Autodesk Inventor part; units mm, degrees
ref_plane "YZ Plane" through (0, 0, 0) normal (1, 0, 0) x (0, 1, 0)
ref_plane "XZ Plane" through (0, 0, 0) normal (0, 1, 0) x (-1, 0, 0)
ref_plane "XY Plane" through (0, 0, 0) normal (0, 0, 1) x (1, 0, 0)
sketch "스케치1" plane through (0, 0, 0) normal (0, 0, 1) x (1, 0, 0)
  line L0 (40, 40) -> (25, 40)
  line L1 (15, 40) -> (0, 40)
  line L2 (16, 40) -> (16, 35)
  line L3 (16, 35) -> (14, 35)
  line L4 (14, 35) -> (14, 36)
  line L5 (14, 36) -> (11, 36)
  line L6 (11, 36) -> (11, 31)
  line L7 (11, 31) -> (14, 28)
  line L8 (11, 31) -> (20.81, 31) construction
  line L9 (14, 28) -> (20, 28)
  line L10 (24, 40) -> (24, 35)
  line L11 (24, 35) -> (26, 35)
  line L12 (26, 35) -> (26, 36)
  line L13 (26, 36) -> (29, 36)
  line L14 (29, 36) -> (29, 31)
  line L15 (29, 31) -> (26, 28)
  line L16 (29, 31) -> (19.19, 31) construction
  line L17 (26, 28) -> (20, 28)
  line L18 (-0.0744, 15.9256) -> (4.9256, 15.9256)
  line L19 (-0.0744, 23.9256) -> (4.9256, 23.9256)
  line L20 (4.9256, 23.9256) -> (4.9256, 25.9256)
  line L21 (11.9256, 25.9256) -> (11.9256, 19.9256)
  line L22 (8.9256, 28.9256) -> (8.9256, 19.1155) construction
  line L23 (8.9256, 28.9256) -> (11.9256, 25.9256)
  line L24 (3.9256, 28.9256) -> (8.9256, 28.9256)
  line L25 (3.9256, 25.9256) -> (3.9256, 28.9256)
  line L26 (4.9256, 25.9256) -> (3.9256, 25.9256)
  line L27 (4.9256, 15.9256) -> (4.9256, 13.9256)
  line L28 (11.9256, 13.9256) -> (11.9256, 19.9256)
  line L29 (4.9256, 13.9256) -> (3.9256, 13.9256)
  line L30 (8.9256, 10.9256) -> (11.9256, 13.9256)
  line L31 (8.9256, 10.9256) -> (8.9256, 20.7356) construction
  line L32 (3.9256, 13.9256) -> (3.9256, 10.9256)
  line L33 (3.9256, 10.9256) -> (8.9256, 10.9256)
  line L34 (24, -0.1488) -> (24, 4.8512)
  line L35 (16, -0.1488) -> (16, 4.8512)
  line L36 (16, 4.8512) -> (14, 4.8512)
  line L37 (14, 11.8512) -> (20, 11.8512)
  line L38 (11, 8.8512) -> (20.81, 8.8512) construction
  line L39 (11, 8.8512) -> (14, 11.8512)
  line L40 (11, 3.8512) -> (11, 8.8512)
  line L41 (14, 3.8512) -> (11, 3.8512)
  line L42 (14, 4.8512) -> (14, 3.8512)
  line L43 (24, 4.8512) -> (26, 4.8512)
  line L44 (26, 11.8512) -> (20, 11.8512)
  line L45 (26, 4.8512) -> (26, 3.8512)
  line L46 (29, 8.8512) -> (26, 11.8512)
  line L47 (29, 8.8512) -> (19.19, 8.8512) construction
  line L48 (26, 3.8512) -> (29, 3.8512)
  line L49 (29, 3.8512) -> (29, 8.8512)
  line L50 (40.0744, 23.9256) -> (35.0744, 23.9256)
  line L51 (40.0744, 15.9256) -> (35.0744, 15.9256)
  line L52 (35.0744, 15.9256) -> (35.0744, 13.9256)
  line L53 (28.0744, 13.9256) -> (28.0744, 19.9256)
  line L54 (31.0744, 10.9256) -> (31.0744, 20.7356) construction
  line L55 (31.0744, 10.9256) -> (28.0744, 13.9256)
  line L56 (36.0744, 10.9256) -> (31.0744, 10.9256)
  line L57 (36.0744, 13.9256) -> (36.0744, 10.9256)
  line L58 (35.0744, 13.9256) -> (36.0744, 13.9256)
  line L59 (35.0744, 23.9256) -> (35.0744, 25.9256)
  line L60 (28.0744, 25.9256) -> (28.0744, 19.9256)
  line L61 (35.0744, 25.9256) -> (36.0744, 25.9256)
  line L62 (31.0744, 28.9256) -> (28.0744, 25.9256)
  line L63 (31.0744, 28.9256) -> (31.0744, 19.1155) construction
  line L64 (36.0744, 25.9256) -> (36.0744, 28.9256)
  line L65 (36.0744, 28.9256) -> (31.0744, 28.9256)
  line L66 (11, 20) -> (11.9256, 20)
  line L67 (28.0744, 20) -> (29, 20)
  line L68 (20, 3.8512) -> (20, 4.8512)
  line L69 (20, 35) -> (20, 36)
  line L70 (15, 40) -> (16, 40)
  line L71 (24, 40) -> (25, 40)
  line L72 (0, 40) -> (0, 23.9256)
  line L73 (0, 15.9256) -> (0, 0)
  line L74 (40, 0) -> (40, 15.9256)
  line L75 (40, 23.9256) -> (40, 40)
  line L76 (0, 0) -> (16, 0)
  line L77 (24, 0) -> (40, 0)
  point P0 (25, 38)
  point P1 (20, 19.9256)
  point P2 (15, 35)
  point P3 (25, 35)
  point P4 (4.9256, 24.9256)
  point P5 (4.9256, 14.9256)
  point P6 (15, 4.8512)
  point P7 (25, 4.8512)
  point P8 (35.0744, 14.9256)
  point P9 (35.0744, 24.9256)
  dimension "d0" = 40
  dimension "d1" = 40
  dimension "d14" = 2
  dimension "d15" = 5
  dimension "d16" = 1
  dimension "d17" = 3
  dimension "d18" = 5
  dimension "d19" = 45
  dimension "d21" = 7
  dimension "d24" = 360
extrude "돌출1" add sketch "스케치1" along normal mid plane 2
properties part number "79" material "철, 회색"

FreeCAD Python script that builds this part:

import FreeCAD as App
import Part
import Sketcher

doc = App.newDocument("Part")
params = doc.addObject("Spreadsheet::Sheet", "Params")
for row, (alias, value) in enumerate([
    ("sketch1_width", "2 mm"),
    ("sketch1_width2", "3 mm"),
    ("sketch1_width3", "1 mm"),
    ("sketch1_width4", "5 mm"),
    ("sketch1_width5", "16 mm"),
    ("pad1_length", "2 mm"),
], start=1):
    params.set(f"A{row}", alias)
    params.set(f"B{row}", "=" + value)
    params.setAlias(f"B{row}", alias)

body = doc.addObject("PartDesign::Body", "Body")

sketch1 = doc.addObject("Sketcher::SketchObject", "Sketch")
body.addObject(sketch1)
sketch1.AttachmentSupport = (doc.XY_Plane, [""])
sketch1.MapMode = "FlatFace"
sketch1.addGeometry([
    Part.LineSegment(App.Vector(40, 23.9, 0), App.Vector(40, 40, 0)),
    Part.LineSegment(App.Vector(40, 40, 0), App.Vector(24, 40, 0)),
    Part.LineSegment(App.Vector(24, 40, 0), App.Vector(24, 35, 0)),
    Part.LineSegment(App.Vector(24, 35, 0), App.Vector(26, 35, 0)),
    Part.LineSegment(App.Vector(26, 35, 0), App.Vector(26, 36, 0)),
    Part.LineSegment(App.Vector(26, 36, 0), App.Vector(29, 36, 0)),
    Part.LineSegment(App.Vector(29, 36, 0), App.Vector(29, 31, 0)),
    Part.LineSegment(App.Vector(29, 31, 0), App.Vector(26, 28, 0)),
    Part.LineSegment(App.Vector(26, 28, 0), App.Vector(14, 28, 0)),
    Part.LineSegment(App.Vector(14, 28, 0), App.Vector(11, 31, 0)),
    Part.LineSegment(App.Vector(11, 31, 0), App.Vector(11, 36, 0)),
    Part.LineSegment(App.Vector(11, 36, 0), App.Vector(14, 36, 0)),
    Part.LineSegment(App.Vector(14, 36, 0), App.Vector(14, 35, 0)),
    Part.LineSegment(App.Vector(14, 35, 0), App.Vector(16, 35, 0)),
    Part.LineSegment(App.Vector(16, 35, 0), App.Vector(16, 40, 0)),
    Part.LineSegment(App.Vector(16, 40, 0), App.Vector(0, 40, 0)),
    Part.LineSegment(App.Vector(0, 40, 0), App.Vector(0, 23.9, 0)),
    Part.LineSegment(App.Vector(0, 23.9, 0), App.Vector(4.9, 23.9, 0)),
    Part.LineSegment(App.Vector(4.9, 23.9, 0), App.Vector(4.9, 25.9, 0)),
    Part.LineSegment(App.Vector(4.9, 25.9, 0), App.Vector(3.9, 25.9, 0)),
    Part.LineSegment(App.Vector(3.9, 25.9, 0), App.Vector(3.9, 28.9, 0)),
    Part.LineSegment(App.Vector(3.9, 28.9, 0), App.Vector(8.9, 28.9, 0)),
    Part.LineSegment(App.Vector(8.9, 28.9, 0), App.Vector(11.9, 25.9, 0)),
    Part.LineSegment(App.Vector(11.9, 25.9, 0), App.Vector(11.9, 13.9, 0)),
    Part.LineSegment(App.Vector(11.9, 13.9, 0), App.Vector(8.9, 10.9, 0)),
    Part.LineSegment(App.Vector(8.9, 10.9, 0), App.Vector(3.9, 10.9, 0)),
    Part.LineSegment(App.Vector(3.9, 10.9, 0), App.Vector(3.9, 13.9, 0)),
    Part.LineSegment(App.Vector(3.9, 13.9, 0), App.Vector(4.9, 13.9, 0)),
    Part.LineSegment(App.Vector(4.9, 13.9, 0), App.Vector(4.9, 15.9, 0)),
    Part.LineSegment(App.Vector(4.9, 15.9, 0), App.Vector(0, 15.9, 0)),
    Part.LineSegment(App.Vector(0, 15.9, 0), App.Vector(0, 0, 0)),
    Part.LineSegment(App.Vector(0, 0, 0), App.Vector(16, 0, 0)),
    Part.LineSegment(App.Vector(16, 0, 0), App.Vector(16, 4.9, 0)),
    Part.LineSegment(App.Vector(16, 4.9, 0), App.Vector(14, 4.9, 0)),
    Part.LineSegment(App.Vector(14, 4.9, 0), App.Vector(14, 3.9, 0)),
    Part.LineSegment(App.Vector(14, 3.9, 0), App.Vector(11, 3.9, 0)),
    Part.LineSegment(App.Vector(11, 3.9, 0), App.Vector(11, 8.9, 0)),
    Part.LineSegment(App.Vector(11, 8.9, 0), App.Vector(14, 11.9, 0)),
    Part.LineSegment(App.Vector(14, 11.9, 0), App.Vector(26, 11.9, 0)),
    Part.LineSegment(App.Vector(26, 11.9, 0), App.Vector(29, 8.9, 0)),
    Part.LineSegment(App.Vector(29, 8.9, 0), App.Vector(29, 3.9, 0)),
    Part.LineSegment(App.Vector(29, 3.9, 0), App.Vector(26, 3.9, 0)),
    Part.LineSegment(App.Vector(26, 3.9, 0), App.Vector(26, 4.9, 0)),
    Part.LineSegment(App.Vector(26, 4.9, 0), App.Vector(24, 4.9, 0)),
    Part.LineSegment(App.Vector(24, 4.9, 0), App.Vector(24, 0, 0)),
    Part.LineSegment(App.Vector(24, 0, 0), App.Vector(40, 0, 0)),
    Part.LineSegment(App.Vector(40, 0, 0), App.Vector(40, 15.9, 0)),
    Part.LineSegment(App.Vector(40, 15.9, 0), App.Vector(35.1, 15.9, 0)),
    Part.LineSegment(App.Vector(35.1, 15.9, 0), App.Vector(35.1, 13.9, 0)),
    Part.LineSegment(App.Vector(35.1, 13.9, 0), App.Vector(36.1, 13.9, 0)),
    Part.LineSegment(App.Vector(36.1, 13.9, 0), App.Vector(36.1, 10.9, 0)),
    Part.LineSegment(App.Vector(36.1, 10.9, 0), App.Vector(31.1, 10.9, 0)),
    Part.LineSegment(App.Vector(31.1, 10.9, 0), App.Vector(28.1, 13.9, 0)),
    Part.LineSegment(App.Vector(28.1, 13.9, 0), App.Vector(28.1, 25.9, 0)),
    Part.LineSegment(App.Vector(28.1, 25.9, 0), App.Vector(31.1, 28.9, 0)),
    Part.LineSegment(App.Vector(31.1, 28.9, 0), App.Vector(36.1, 28.9, 0)),
    Part.LineSegment(App.Vector(36.1, 28.9, 0), App.Vector(36.1, 25.9, 0)),
    Part.LineSegment(App.Vector(36.1, 25.9, 0), App.Vector(35.1, 25.9, 0)),
    Part.LineSegment(App.Vector(35.1, 25.9, 0), App.Vector(35.1, 23.9, 0)),
    Part.LineSegment(App.Vector(35.1, 23.9, 0), App.Vector(40, 23.9, 0)),
], False)
sketch1.addConstraint([
    Sketcher.Constraint("Coincident", 0, 2, 1, 1),
    Sketcher.Constraint("Coincident", 1, 2, 2, 1),
    Sketcher.Constraint("Coincident", 2, 2, 3, 1),
    Sketcher.Constraint("Coincident", 3, 2, 4, 1),
    Sketcher.Constraint("Coincident", 4, 2, 5, 1),
    Sketcher.Constraint("Coincident", 5, 2, 6, 1),
    Sketcher.Constraint("Coincident", 6, 2, 7, 1),
    Sketcher.Constraint("Coincident", 7, 2, 8, 1),
    Sketcher.Constraint("Coincident", 8, 2, 9, 1),
    Sketcher.Constraint("Coincident", 9, 2, 10, 1),
    Sketcher.Constraint("Coincident", 10, 2, 11, 1),
    Sketcher.Constraint("Coincident", 11, 2, 12, 1),
    Sketcher.Constraint("Coincident", 12, 2, 13, 1),
    Sketcher.Constraint("Coincident", 13, 2, 14, 1),
    Sketcher.Constraint("Coincident", 14, 2, 15, 1),
    Sketcher.Constraint("Coincident", 15, 2, 16, 1),
    Sketcher.Constraint("Coincident", 16, 2, 17, 1),
    Sketcher.Constraint("Coincident", 17, 2, 18, 1),
    Sketcher.Constraint("Coincident", 18, 2, 19, 1),
    Sketcher.Constraint("Coincident", 19, 2, 20, 1),
    Sketcher.Constraint("Coincident", 20, 2, 21, 1),
    Sketcher.Constraint("Coincident", 21, 2, 22, 1),
    Sketcher.Constraint("Coincident", 22, 2, 23, 1),
    Sketcher.Constraint("Coincident", 23, 2, 24, 1),
    Sketcher.Constraint("Coincident", 24, 2, 25, 1),
    Sketcher.Constraint("Coincident", 25, 2, 26, 1),
    Sketcher.Constraint("Coincident", 26, 2, 27, 1),
    Sketcher.Constraint("Coincident", 27, 2, 28, 1),
    Sketcher.Constraint("Coincident", 28, 2, 29, 1),
    Sketcher.Constraint("Coincident", 29, 2, 30, 1),
    Sketcher.Constraint("Coincident", 30, 2, 31, 1),
    Sketcher.Constraint("Coincident", 31, 2, 32, 1),
    Sketcher.Constraint("Coincident", 32, 2, 33, 1),
    Sketcher.Constraint("Coincident", 33, 2, 34, 1),
    Sketcher.Constraint("Coincident", 34, 2, 35, 1),
    Sketcher.Constraint("Coincident", 35, 2, 36, 1),
    Sketcher.Constraint("Coincident", 36, 2, 37, 1),
    Sketcher.Constraint("Coincident", 37, 2, 38, 1),
    Sketcher.Constraint("Coincident", 38, 2, 39, 1),
    Sketcher.Constraint("Coincident", 39, 2, 40, 1),
    Sketcher.Constraint("Coincident", 40, 2, 41, 1),
    Sketcher.Constraint("Coincident", 41, 2, 42, 1),
    Sketcher.Constraint("Coincident", 42, 2, 43, 1),
    Sketcher.Constraint("Coincident", 43, 2, 44, 1),
    Sketcher.Constraint("Coincident", 44, 2, 45, 1),
    Sketcher.Constraint("Coincident", 45, 2, 46, 1),
    Sketcher.Constraint("Coincident", 46, 2, 47, 1),
    Sketcher.Constraint("Coincident", 47, 2, 48, 1),
    Sketcher.Constraint("Coincident", 48, 2, 49, 1),
    Sketcher.Constraint("Coincident", 49, 2, 50, 1),
    Sketcher.Constraint("Coincident", 50, 2, 51, 1),
    Sketcher.Constraint("Coincident", 51, 2, 52, 1),
    Sketcher.Constraint("Coincident", 52, 2, 53, 1),
    Sketcher.Constraint("Coincident", 53, 2, 54, 1),
    Sketcher.Constraint("Coincident", 54, 2, 55, 1),
    Sketcher.Constraint("Coincident", 55, 2, 56, 1),
    Sketcher.Constraint("Coincident", 56, 2, 57, 1),
    Sketcher.Constraint("Coincident", 57, 2, 58, 1),
    Sketcher.Constraint("Coincident", 58, 2, 59, 1),
    Sketcher.Constraint("Coincident", 59, 2, 0, 1),
    Sketcher.Constraint("Vertical", 0),
    Sketcher.Constraint("Horizontal", 1),
    Sketcher.Constraint("Vertical", 2),
    Sketcher.Constraint("Horizontal", 3),
    Sketcher.Constraint("Vertical", 4),
    Sketcher.Constraint("Horizontal", 5),
    Sketcher.Constraint("Vertical", 6),
    Sketcher.Constraint("Horizontal", 8),
    Sketcher.Constraint("Vertical", 10),
    Sketcher.Constraint("Horizontal", 11),
    Sketcher.Constraint("Vertical", 12),
    Sketcher.Constraint("Horizontal", 13),
    Sketcher.Constraint("Vertical", 14),
    Sketcher.Constraint("Horizontal", 15),
    Sketcher.Constraint("Vertical", 16),
    Sketcher.Constraint("Horizontal", 17),
    Sketcher.Constraint("Vertical", 18),
    Sketcher.Constraint("Horizontal", 19),
    Sketcher.Constraint("Vertical", 20),
    Sketcher.Constraint("Horizontal", 21),
    Sketcher.Constraint("Vertical", 23),
    Sketcher.Constraint("Horizontal", 25),
    Sketcher.Constraint("Vertical", 26),
    Sketcher.Constraint("Horizontal", 27),
    Sketcher.Constraint("Vertical", 28),
    Sketcher.Constraint("Horizontal", 29),
    Sketcher.Constraint("Vertical", 30),
    Sketcher.Constraint("Horizontal", 31),
    Sketcher.Constraint("Vertical", 32),
    Sketcher.Constraint("Horizontal", 33),
    Sketcher.Constraint("Vertical", 34),
    Sketcher.Constraint("Horizontal", 35),
    Sketcher.Constraint("Vertical", 36),
    Sketcher.Constraint("Horizontal", 38),
    Sketcher.Constraint("Vertical", 40),
    Sketcher.Constraint("Horizontal", 41),
    Sketcher.Constraint("Vertical", 42),
    Sketcher.Constraint("Horizontal", 43),
    Sketcher.Constraint("Vertical", 44),
    Sketcher.Constraint("Horizontal", 45),
    Sketcher.Constraint("Vertical", 46),
    Sketcher.Constraint("Horizontal", 47),
    Sketcher.Constraint("Vertical", 48),
    Sketcher.Constraint("Horizontal", 49),
    Sketcher.Constraint("Vertical", 50),
    Sketcher.Constraint("Horizontal", 51),
    Sketcher.Constraint("Vertical", 53),
    Sketcher.Constraint("Horizontal", 55),
    Sketcher.Constraint("Vertical", 56),
    Sketcher.Constraint("Horizontal", 57),
    Sketcher.Constraint("Vertical", 58),
    Sketcher.Constraint("Horizontal", 59),
    Sketcher.Constraint("Coincident", 30, 2, -1, 1),
    Sketcher.Constraint("PointOnObject", 15, 2, -2),
    Sketcher.Constraint("PointOnObject", 44, 2, -1),
    Sketcher.Constraint("Perpendicular", 7, 9),
    Sketcher.Constraint("Parallel", 9, 22),
    Sketcher.Constraint("Perpendicular", 22, 24),
    Sketcher.Constraint("Parallel", 24, 37),
    Sketcher.Constraint("Perpendicular", 37, 39),
    Sketcher.Constraint("Parallel", 39, 52),
    Sketcher.Constraint("Perpendicular", 52, 54),
    Sketcher.Constraint("Horizontal", 6, 2, 9, 2),
    Sketcher.Constraint("Horizontal", 5, 2, 10, 2),
    Sketcher.Constraint("Horizontal", 3, 2, 12, 2),
    Sketcher.Constraint("Horizontal", 1, 2, 14, 2),
    Sketcher.Constraint("Horizontal", 19, 2, 22, 2),
    Sketcher.Constraint("Horizontal", 23, 2, 26, 2),
    Sketcher.Constraint("Horizontal", 36, 2, 39, 2),
    Sketcher.Constraint("Horizontal", 35, 2, 40, 2),
    Sketcher.Constraint("Horizontal", 33, 2, 42, 2),
    Sketcher.Constraint("Horizontal", 29, 2, 46, 2),
    Sketcher.Constraint("Horizontal", 27, 2, 48, 2),
    Sketcher.Constraint("Horizontal", 25, 2, 50, 2),
    Sketcher.Constraint("Horizontal", 49, 2, 52, 2),
    Sketcher.Constraint("Horizontal", 22, 2, 53, 2),
    Sketcher.Constraint("Horizontal", 21, 2, 54, 2),
    Sketcher.Constraint("Horizontal", 53, 2, 56, 2),
    Sketcher.Constraint("Horizontal", 17, 2, 58, 2),
    Sketcher.Constraint("Vertical", 4, 2, 7, 2),
    Sketcher.Constraint("Vertical", 8, 2, 11, 2),
    Sketcher.Constraint("Vertical", 21, 2, 24, 2),
    Sketcher.Constraint("Vertical", 20, 2, 25, 2),
    Sketcher.Constraint("Vertical", 18, 2, 27, 2),
    Sketcher.Constraint("Vertical", 14, 2, 31, 2),
    Sketcher.Constraint("Vertical", 12, 2, 33, 2),
    Sketcher.Constraint("Vertical", 10, 2, 35, 2),
    Sketcher.Constraint("Vertical", 34, 2, 37, 2),
    Sketcher.Constraint("Vertical", 7, 2, 38, 2),
    Sketcher.Constraint("Vertical", 6, 2, 39, 2),
    Sketcher.Constraint("Vertical", 38, 2, 41, 2),
    Sketcher.Constraint("Vertical", 2, 2, 43, 2),
    Sketcher.Constraint("Vertical", 0, 2, 45, 2),
    Sketcher.Constraint("Vertical", 50, 2, 55, 2),
    Sketcher.Constraint("Vertical", 48, 2, 57, 2),
    Sketcher.Constraint("Equal", 3, 13),
    Sketcher.Constraint("Equal", 1, 15),
    Sketcher.Constraint("Equal", 29, 47),
    Sketcher.Constraint("Equal", 27, 49),
    Sketcher.Constraint("Equal", 25, 51),
    Sketcher.Constraint("Equal", 55, 2),
    Sketcher.Constraint("Equal", 57, 4),
    Sketcher.Constraint("Equal", 2, 6),
    Sketcher.Constraint("Equal", 43, 18),
    Sketcher.Constraint("Equal", 41, 20),
    Sketcher.Constraint("Equal", 38, 23),
    Sketcher.Constraint("Equal", 18, 28),
    Sketcher.Constraint("Equal", 12, 34),
    Sketcher.Constraint("Equal", 14, 36),
    Sketcher.Constraint("DistanceX", 3, 1, 3, 2, 2.0),
    Sketcher.Constraint("DistanceX", 5, 1, 5, 2, 3.0),
    Sketcher.Constraint("DistanceX", 19, 2, 19, 1, 1.0),
    Sketcher.Constraint("DistanceX", 21, 1, 21, 2, 5.0),
    Sketcher.Constraint("DistanceX", -1, 1, 0, 2, 40.0),
    Sketcher.Constraint("DistanceY", -1, 1, 0, 2, 40.0),
    Sketcher.Constraint("DistanceX", 1, 2, 1, 1, 16.0),
    Sketcher.Constraint("DistanceX", 17, 1, 17, 2, 4.9256),
    Sketcher.Constraint("DistanceY", 0, 1, 0, 2, 16.0744),
    Sketcher.Constraint("DistanceY", 32, 1, 32, 2, 4.8512),
])
sketch1.setExpression("Constraints[169]", "Params.sketch1_width")
sketch1.setExpression("Constraints[170]", "Params.sketch1_width2")
sketch1.setExpression("Constraints[171]", "Params.sketch1_width3")
sketch1.setExpression("Constraints[172]", "Params.sketch1_width4")
sketch1.setExpression("Constraints[175]", "Params.sketch1_width5")
pad1 = doc.addObject("PartDesign::Pad", "Pad")
body.addObject(pad1)
pad1.Profile = sketch1
pad1.setExpression("Length", "Params.pad1_length")
pad1.Midplane = True

doc.recompute()
